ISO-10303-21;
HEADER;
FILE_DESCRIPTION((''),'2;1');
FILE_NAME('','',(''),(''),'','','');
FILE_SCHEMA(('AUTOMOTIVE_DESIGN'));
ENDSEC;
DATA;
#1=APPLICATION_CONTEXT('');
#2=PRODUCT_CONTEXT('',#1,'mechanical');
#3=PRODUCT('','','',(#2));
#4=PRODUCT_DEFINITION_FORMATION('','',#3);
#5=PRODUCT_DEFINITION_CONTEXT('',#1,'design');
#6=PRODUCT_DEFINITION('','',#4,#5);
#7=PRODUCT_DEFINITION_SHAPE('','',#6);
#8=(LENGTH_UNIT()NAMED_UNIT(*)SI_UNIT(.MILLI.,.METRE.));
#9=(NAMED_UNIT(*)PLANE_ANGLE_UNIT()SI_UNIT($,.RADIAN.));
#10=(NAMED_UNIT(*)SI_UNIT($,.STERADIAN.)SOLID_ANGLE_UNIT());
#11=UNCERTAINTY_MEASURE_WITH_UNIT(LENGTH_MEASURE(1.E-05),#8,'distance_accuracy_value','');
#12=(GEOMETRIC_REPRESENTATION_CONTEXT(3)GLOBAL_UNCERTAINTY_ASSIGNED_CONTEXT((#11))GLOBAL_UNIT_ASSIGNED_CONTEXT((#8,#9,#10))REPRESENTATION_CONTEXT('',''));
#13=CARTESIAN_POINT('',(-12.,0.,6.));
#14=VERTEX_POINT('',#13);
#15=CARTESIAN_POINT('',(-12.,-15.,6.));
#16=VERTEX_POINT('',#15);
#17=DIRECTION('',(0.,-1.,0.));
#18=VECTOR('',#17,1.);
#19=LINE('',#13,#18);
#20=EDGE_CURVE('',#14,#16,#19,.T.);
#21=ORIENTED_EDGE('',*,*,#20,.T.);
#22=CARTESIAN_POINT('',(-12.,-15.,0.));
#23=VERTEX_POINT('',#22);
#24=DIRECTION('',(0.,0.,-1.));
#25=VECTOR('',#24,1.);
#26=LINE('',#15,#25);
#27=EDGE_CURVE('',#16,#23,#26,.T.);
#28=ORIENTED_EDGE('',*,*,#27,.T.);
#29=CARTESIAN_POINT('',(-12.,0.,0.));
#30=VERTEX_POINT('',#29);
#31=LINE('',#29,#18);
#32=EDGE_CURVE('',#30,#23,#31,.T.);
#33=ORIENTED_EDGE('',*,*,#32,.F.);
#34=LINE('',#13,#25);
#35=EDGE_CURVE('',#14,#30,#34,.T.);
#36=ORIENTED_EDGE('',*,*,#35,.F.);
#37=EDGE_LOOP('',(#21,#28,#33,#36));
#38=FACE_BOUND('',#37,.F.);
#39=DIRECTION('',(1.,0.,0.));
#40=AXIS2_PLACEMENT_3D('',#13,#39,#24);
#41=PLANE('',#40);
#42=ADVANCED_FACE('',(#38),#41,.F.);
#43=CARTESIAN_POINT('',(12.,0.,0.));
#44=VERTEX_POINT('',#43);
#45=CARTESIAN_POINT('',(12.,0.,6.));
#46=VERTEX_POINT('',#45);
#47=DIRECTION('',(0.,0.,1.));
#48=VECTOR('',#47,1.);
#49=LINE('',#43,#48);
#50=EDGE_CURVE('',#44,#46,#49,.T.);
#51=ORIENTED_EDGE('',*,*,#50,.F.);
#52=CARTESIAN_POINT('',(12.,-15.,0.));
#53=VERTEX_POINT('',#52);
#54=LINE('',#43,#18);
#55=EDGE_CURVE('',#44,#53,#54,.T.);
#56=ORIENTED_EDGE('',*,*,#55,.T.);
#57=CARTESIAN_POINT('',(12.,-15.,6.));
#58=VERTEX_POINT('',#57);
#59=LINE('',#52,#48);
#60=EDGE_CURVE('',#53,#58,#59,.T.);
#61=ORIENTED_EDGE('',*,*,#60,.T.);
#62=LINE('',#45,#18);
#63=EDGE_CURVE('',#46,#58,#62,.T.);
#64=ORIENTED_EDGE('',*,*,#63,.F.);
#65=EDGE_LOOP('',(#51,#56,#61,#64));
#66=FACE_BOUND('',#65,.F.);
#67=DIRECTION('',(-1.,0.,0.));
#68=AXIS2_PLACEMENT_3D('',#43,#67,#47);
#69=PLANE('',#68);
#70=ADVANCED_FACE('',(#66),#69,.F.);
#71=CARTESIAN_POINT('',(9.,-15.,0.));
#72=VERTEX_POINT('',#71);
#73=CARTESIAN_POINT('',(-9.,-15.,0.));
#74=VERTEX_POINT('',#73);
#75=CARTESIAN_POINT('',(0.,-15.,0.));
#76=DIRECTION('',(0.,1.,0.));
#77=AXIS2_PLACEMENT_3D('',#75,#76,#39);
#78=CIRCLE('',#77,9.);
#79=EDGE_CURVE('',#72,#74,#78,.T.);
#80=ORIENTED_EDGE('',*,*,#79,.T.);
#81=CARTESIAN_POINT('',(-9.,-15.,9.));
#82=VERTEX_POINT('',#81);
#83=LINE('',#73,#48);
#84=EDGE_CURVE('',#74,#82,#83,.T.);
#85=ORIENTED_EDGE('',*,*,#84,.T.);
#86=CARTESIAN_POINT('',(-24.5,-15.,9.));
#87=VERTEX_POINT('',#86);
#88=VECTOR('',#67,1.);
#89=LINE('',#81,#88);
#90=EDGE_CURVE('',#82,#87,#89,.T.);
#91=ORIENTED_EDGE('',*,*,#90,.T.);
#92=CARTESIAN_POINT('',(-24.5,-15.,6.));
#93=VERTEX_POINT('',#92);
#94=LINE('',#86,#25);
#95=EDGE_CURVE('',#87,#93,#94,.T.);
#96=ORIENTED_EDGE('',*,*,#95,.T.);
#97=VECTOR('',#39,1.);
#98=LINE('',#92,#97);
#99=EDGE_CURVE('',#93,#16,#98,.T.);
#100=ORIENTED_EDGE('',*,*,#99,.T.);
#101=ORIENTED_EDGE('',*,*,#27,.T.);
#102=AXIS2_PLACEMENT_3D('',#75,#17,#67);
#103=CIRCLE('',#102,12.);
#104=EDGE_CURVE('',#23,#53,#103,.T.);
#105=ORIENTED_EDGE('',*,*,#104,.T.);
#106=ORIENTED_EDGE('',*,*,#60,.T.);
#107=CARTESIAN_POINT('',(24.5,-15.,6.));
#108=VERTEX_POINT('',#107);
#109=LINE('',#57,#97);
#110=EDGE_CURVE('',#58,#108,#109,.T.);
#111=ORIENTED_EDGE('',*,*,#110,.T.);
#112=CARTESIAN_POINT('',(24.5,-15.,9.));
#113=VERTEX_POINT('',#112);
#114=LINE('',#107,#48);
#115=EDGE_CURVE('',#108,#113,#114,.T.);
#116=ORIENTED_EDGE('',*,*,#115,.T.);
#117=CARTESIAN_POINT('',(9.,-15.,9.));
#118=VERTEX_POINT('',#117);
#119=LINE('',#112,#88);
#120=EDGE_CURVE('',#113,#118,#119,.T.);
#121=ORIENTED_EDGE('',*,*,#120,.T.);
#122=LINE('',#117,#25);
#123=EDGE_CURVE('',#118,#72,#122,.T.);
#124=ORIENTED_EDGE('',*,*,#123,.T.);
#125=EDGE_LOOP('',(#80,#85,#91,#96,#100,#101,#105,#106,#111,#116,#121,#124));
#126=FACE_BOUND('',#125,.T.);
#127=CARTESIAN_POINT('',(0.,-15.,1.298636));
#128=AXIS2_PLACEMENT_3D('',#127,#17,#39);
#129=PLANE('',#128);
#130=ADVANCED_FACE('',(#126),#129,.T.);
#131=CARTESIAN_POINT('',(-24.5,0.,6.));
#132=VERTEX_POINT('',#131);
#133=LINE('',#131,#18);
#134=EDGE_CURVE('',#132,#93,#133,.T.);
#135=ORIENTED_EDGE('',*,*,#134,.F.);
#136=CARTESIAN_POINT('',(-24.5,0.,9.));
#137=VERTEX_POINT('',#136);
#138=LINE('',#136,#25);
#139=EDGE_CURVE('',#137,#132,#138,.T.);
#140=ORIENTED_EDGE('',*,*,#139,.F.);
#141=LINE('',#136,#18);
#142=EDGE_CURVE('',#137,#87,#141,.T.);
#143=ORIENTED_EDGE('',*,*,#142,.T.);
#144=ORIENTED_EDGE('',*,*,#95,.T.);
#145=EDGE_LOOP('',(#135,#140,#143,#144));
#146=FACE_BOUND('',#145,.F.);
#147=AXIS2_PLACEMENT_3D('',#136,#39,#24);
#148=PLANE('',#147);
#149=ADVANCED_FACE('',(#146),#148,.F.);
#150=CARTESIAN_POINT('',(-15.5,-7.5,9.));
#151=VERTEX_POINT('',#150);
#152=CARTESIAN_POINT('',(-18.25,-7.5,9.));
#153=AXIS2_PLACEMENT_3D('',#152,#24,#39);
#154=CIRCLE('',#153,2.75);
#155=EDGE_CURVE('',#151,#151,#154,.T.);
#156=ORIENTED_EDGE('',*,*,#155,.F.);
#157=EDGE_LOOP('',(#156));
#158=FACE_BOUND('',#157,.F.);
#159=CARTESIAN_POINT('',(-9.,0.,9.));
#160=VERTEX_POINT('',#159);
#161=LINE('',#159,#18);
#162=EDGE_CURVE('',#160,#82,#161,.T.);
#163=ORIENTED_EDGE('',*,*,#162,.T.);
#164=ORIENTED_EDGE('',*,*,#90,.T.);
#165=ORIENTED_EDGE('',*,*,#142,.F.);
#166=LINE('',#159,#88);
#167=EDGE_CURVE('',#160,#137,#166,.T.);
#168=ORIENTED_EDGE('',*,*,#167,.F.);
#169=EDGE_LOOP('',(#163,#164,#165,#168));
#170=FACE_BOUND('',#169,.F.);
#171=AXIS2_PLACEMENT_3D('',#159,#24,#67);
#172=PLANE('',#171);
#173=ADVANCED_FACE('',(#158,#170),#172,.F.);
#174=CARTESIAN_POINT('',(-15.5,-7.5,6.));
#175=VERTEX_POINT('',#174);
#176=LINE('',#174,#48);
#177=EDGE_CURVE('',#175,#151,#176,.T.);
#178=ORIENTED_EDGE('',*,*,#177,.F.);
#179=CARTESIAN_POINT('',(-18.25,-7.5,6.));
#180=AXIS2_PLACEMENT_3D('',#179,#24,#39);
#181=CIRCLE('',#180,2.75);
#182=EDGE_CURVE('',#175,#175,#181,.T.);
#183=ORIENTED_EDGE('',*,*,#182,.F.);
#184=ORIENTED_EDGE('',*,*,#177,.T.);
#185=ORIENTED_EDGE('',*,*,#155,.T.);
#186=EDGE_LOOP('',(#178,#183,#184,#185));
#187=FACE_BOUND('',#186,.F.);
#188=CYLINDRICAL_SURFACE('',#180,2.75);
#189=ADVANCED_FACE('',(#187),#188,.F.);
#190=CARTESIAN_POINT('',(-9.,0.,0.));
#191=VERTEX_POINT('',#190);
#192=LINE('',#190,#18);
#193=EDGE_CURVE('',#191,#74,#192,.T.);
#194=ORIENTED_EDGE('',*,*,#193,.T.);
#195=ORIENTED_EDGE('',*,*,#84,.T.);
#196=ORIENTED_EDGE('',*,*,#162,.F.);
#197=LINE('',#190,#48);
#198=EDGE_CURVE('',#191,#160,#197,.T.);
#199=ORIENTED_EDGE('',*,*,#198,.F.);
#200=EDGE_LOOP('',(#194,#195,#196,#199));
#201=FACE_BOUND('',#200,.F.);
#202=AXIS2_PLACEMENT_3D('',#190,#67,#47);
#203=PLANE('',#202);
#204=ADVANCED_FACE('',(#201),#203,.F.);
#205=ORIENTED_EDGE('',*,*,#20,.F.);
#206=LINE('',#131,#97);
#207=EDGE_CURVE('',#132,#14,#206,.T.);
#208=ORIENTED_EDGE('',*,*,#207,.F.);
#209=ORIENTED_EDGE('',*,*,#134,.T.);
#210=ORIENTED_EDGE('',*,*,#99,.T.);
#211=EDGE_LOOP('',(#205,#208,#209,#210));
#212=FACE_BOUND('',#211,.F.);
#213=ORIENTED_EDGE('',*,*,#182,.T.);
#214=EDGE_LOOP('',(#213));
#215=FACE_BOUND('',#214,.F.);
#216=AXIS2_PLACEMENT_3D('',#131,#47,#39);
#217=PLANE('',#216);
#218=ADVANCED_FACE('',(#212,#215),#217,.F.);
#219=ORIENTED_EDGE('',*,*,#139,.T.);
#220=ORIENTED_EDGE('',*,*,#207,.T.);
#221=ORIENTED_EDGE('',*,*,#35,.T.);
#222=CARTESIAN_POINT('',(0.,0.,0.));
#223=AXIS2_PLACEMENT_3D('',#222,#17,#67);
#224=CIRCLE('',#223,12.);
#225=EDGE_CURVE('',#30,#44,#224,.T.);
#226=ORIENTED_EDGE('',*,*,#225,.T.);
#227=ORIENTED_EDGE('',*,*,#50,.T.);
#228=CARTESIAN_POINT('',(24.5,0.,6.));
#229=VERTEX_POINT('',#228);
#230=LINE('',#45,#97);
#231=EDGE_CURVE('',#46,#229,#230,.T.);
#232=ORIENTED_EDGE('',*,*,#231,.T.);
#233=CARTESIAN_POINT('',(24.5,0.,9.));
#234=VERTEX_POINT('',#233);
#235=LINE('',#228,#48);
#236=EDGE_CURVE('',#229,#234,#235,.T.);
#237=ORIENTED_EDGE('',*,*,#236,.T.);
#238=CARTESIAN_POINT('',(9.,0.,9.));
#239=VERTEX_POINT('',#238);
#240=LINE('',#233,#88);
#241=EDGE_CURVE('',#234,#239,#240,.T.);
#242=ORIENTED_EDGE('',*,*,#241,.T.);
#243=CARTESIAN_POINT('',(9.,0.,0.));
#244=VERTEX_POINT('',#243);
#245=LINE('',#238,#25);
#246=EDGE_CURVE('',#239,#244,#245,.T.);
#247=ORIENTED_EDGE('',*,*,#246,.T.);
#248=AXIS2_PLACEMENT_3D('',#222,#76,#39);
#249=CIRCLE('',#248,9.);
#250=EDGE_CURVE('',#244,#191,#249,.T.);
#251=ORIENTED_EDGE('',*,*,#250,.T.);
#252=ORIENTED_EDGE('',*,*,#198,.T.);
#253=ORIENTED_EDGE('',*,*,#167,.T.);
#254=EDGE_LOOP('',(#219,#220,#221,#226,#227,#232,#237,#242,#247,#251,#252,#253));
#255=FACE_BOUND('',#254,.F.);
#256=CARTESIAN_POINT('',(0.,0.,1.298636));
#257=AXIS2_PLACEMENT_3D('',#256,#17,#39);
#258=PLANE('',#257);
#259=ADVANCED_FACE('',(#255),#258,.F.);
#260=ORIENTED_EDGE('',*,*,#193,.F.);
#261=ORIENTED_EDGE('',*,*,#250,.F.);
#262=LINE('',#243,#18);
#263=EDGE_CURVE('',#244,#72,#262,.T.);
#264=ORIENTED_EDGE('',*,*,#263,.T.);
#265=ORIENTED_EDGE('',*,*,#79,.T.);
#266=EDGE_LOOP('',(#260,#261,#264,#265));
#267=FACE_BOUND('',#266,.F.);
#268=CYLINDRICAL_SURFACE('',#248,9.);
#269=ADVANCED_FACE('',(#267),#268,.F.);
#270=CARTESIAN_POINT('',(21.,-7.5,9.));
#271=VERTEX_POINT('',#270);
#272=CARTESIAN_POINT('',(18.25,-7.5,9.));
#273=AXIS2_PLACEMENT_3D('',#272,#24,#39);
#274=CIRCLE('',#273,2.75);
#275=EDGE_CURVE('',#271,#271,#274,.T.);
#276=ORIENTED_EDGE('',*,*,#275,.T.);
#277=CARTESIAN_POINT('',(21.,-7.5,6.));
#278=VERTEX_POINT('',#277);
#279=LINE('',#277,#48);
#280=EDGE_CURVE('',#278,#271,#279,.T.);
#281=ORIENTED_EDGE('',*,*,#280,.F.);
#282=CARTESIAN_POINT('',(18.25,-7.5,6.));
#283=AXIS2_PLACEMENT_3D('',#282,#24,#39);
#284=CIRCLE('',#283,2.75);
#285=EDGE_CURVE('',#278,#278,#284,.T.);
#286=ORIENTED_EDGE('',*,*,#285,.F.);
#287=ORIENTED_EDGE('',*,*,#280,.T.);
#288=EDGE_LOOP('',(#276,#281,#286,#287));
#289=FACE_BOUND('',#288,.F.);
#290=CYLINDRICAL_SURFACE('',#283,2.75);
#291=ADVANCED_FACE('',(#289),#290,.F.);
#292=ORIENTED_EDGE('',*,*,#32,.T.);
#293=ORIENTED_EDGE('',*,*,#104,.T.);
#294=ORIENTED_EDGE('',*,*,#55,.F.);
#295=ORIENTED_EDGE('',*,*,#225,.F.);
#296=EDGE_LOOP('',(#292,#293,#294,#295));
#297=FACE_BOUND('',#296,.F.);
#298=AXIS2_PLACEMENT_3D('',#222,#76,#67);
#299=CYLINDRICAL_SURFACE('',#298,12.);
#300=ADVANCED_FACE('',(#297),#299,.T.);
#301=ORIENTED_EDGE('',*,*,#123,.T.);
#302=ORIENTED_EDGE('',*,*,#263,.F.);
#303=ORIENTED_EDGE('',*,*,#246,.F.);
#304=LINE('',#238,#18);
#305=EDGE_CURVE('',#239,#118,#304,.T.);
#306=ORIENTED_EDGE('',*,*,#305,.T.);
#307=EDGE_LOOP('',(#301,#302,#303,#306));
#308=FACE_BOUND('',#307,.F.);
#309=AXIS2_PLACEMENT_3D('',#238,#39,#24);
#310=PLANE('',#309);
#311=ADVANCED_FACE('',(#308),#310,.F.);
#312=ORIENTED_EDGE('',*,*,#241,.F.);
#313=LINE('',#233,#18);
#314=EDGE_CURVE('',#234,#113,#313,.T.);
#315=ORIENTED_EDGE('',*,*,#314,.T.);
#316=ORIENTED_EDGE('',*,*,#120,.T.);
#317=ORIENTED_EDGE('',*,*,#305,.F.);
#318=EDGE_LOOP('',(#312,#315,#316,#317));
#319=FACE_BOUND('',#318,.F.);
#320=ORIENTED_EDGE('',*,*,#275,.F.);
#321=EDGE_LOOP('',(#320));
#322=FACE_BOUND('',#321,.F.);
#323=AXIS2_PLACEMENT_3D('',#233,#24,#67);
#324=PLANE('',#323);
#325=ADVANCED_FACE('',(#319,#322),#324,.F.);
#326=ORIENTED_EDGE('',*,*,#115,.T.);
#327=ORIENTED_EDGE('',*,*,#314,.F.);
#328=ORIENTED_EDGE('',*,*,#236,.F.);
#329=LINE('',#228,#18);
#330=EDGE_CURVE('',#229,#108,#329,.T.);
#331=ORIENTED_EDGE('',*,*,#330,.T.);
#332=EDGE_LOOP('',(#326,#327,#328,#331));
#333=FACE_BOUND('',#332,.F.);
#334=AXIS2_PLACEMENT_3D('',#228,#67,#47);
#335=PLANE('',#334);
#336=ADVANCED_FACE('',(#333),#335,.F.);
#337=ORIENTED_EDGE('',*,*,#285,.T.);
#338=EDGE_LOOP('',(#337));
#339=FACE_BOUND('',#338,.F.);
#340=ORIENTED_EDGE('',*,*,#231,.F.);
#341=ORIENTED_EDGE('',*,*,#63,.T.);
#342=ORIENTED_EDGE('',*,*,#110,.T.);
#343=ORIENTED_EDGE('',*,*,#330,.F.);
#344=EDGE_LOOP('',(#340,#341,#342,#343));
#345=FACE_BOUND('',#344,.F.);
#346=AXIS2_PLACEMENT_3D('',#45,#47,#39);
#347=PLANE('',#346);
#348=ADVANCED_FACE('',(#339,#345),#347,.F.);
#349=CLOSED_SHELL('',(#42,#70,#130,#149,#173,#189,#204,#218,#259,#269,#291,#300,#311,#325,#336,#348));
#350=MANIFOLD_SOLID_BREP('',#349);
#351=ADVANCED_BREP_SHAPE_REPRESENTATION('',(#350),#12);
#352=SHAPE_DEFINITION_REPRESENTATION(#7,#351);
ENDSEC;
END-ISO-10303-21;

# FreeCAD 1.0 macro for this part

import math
import FreeCAD as App
import Part
import Sketcher

doc = App.newDocument("Part")
body = doc.addObject("PartDesign::Body", "Body")

# Sketch on XZ plane
sketch1 = doc.addObject("Sketcher::SketchObject", "Sketch")
body.addObject(sketch1)
sketch1.AttachmentSupport = (doc.XZ_Plane, [""])
sketch1.MapMode = "FlatFace"
sketch1.addGeometry([
    Part.ArcOfCircle(Part.Circle(App.Vector(0, 0, 0), App.Vector(0, 0, 1), 9), math.radians(180), math.radians(360)),  # 0
    Part.LineSegment(App.Vector(-9, 0, 0), App.Vector(-9, 9, 0)),  # 1
    Part.LineSegment(App.Vector(-9, 9, 0), App.Vector(-24.5, 9, 0)),  # 2
    Part.LineSegment(App.Vector(-24.5, 9, 0), App.Vector(-24.5, 6, 0)),  # 3
    Part.LineSegment(App.Vector(-24.5, 6, 0), App.Vector(-12, 6, 0)),  # 4
    Part.LineSegment(App.Vector(-12, 6, 0), App.Vector(-12, 0, 0)),  # 5
    Part.ArcOfCircle(Part.Circle(App.Vector(0, 0, 0), App.Vector(0, 0, 1), 12), math.radians(180), math.radians(360)),  # 6
    Part.LineSegment(App.Vector(12, 0, 0), App.Vector(12, 6, 0)),  # 7
    Part.LineSegment(App.Vector(12, 6, 0), App.Vector(24.5, 6, 0)),  # 8
    Part.LineSegment(App.Vector(24.5, 6, 0), App.Vector(24.5, 9, 0)),  # 9
    Part.LineSegment(App.Vector(24.5, 9, 0), App.Vector(9, 9, 0)),  # 10
    Part.LineSegment(App.Vector(9, 9, 0), App.Vector(9, 0, 0)),  # 11
], False)
sketch1.addConstraint([
    Sketcher.Constraint("Tangent", 0, 1, 1, 1),
    Sketcher.Constraint("Coincident", 1, 2, 2, 1),
    Sketcher.Constraint("Coincident", 2, 2, 3, 1),
    Sketcher.Constraint("Coincident", 3, 2, 4, 1),
    Sketcher.Constraint("Coincident", 4, 2, 5, 1),
    Sketcher.Constraint("Tangent", 5, 2, 6, 1),
    Sketcher.Constraint("Tangent", 6, 2, 7, 1),
    Sketcher.Constraint("Coincident", 7, 2, 8, 1),
    Sketcher.Constraint("Coincident", 8, 2, 9, 1),
    Sketcher.Constraint("Coincident", 9, 2, 10, 1),
    Sketcher.Constraint("Coincident", 10, 2, 11, 1),
    Sketcher.Constraint("Tangent", 11, 2, 0, 2),
    Sketcher.Constraint("Vertical", 1),
    Sketcher.Constraint("Horizontal", 2),
    Sketcher.Constraint("Vertical", 3),
    Sketcher.Constraint("Horizontal", 4),
    Sketcher.Constraint("Vertical", 5),
    Sketcher.Constraint("Vertical", 7),
    Sketcher.Constraint("Horizontal", 8),
    Sketcher.Constraint("Vertical", 9),
    Sketcher.Constraint("Horizontal", 10),
    Sketcher.Constraint("Vertical", 11),
    Sketcher.Constraint("Coincident", 0, 3, -1, 1),
    Sketcher.Constraint("Coincident", 6, 3, -1, 1),
    Sketcher.Constraint("Symmetric", 3, 2, 8, 2, -2),
    Sketcher.Constraint("Horizontal", 2, 2, 9, 2),
    Sketcher.Constraint("Radius", 0, 9.0),
    Sketcher.Constraint("Radius", 6, 12.0),
    Sketcher.Constraint("DistanceY", 1, 1, 1, 2, 9.0),
    Sketcher.Constraint("DistanceY", 3, 2, 3, 1, 3.0),
    Sketcher.Constraint("DistanceX", 2, 2, 2, 1, 15.5),
])
pad1 = doc.addObject("PartDesign::Pad", "Pad")
body.addObject(pad1)
pad1.Profile = sketch1
pad1.Length = 15

# Sketch on XY plane
sketch2 = doc.addObject("Sketcher::SketchObject", "Sketch001")
body.addObject(sketch2)
sketch2.AttachmentSupport = (doc.XY_Plane, [""])
sketch2.MapMode = "FlatFace"
sketch2.AttachmentOffset = App.Placement(App.Vector(0, 0, 6), App.Rotation())
sketch2.addGeometry([
    Part.Circle(App.Vector(18.2, -7.5, 0), App.Vector(0, 0, 1), 2.8),
    Part.Circle(App.Vector(-18.2, -7.5, 0), App.Vector(0, 0, 1), 2.8),
], False)
sketch2.addConstraint([
    Sketcher.Constraint("Equal", 0, 1),
    Sketcher.Constraint("Symmetric", 0, 3, 1, 3, -2),
    Sketcher.Constraint("Diameter", 0, 5.5),
    Sketcher.Constraint("DistanceY", 0, 3, -1, 1, 7.5),
    Sketcher.Constraint("DistanceX", 1, 3, 0, 3, 36.5),
])
pocket1 = doc.addObject("PartDesign::Pocket", "Pocket")
body.addObject(pocket1)
pocket1.Profile = sketch2
pocket1.Length = 25
pocket1.Reversed = True

doc.recompute()
